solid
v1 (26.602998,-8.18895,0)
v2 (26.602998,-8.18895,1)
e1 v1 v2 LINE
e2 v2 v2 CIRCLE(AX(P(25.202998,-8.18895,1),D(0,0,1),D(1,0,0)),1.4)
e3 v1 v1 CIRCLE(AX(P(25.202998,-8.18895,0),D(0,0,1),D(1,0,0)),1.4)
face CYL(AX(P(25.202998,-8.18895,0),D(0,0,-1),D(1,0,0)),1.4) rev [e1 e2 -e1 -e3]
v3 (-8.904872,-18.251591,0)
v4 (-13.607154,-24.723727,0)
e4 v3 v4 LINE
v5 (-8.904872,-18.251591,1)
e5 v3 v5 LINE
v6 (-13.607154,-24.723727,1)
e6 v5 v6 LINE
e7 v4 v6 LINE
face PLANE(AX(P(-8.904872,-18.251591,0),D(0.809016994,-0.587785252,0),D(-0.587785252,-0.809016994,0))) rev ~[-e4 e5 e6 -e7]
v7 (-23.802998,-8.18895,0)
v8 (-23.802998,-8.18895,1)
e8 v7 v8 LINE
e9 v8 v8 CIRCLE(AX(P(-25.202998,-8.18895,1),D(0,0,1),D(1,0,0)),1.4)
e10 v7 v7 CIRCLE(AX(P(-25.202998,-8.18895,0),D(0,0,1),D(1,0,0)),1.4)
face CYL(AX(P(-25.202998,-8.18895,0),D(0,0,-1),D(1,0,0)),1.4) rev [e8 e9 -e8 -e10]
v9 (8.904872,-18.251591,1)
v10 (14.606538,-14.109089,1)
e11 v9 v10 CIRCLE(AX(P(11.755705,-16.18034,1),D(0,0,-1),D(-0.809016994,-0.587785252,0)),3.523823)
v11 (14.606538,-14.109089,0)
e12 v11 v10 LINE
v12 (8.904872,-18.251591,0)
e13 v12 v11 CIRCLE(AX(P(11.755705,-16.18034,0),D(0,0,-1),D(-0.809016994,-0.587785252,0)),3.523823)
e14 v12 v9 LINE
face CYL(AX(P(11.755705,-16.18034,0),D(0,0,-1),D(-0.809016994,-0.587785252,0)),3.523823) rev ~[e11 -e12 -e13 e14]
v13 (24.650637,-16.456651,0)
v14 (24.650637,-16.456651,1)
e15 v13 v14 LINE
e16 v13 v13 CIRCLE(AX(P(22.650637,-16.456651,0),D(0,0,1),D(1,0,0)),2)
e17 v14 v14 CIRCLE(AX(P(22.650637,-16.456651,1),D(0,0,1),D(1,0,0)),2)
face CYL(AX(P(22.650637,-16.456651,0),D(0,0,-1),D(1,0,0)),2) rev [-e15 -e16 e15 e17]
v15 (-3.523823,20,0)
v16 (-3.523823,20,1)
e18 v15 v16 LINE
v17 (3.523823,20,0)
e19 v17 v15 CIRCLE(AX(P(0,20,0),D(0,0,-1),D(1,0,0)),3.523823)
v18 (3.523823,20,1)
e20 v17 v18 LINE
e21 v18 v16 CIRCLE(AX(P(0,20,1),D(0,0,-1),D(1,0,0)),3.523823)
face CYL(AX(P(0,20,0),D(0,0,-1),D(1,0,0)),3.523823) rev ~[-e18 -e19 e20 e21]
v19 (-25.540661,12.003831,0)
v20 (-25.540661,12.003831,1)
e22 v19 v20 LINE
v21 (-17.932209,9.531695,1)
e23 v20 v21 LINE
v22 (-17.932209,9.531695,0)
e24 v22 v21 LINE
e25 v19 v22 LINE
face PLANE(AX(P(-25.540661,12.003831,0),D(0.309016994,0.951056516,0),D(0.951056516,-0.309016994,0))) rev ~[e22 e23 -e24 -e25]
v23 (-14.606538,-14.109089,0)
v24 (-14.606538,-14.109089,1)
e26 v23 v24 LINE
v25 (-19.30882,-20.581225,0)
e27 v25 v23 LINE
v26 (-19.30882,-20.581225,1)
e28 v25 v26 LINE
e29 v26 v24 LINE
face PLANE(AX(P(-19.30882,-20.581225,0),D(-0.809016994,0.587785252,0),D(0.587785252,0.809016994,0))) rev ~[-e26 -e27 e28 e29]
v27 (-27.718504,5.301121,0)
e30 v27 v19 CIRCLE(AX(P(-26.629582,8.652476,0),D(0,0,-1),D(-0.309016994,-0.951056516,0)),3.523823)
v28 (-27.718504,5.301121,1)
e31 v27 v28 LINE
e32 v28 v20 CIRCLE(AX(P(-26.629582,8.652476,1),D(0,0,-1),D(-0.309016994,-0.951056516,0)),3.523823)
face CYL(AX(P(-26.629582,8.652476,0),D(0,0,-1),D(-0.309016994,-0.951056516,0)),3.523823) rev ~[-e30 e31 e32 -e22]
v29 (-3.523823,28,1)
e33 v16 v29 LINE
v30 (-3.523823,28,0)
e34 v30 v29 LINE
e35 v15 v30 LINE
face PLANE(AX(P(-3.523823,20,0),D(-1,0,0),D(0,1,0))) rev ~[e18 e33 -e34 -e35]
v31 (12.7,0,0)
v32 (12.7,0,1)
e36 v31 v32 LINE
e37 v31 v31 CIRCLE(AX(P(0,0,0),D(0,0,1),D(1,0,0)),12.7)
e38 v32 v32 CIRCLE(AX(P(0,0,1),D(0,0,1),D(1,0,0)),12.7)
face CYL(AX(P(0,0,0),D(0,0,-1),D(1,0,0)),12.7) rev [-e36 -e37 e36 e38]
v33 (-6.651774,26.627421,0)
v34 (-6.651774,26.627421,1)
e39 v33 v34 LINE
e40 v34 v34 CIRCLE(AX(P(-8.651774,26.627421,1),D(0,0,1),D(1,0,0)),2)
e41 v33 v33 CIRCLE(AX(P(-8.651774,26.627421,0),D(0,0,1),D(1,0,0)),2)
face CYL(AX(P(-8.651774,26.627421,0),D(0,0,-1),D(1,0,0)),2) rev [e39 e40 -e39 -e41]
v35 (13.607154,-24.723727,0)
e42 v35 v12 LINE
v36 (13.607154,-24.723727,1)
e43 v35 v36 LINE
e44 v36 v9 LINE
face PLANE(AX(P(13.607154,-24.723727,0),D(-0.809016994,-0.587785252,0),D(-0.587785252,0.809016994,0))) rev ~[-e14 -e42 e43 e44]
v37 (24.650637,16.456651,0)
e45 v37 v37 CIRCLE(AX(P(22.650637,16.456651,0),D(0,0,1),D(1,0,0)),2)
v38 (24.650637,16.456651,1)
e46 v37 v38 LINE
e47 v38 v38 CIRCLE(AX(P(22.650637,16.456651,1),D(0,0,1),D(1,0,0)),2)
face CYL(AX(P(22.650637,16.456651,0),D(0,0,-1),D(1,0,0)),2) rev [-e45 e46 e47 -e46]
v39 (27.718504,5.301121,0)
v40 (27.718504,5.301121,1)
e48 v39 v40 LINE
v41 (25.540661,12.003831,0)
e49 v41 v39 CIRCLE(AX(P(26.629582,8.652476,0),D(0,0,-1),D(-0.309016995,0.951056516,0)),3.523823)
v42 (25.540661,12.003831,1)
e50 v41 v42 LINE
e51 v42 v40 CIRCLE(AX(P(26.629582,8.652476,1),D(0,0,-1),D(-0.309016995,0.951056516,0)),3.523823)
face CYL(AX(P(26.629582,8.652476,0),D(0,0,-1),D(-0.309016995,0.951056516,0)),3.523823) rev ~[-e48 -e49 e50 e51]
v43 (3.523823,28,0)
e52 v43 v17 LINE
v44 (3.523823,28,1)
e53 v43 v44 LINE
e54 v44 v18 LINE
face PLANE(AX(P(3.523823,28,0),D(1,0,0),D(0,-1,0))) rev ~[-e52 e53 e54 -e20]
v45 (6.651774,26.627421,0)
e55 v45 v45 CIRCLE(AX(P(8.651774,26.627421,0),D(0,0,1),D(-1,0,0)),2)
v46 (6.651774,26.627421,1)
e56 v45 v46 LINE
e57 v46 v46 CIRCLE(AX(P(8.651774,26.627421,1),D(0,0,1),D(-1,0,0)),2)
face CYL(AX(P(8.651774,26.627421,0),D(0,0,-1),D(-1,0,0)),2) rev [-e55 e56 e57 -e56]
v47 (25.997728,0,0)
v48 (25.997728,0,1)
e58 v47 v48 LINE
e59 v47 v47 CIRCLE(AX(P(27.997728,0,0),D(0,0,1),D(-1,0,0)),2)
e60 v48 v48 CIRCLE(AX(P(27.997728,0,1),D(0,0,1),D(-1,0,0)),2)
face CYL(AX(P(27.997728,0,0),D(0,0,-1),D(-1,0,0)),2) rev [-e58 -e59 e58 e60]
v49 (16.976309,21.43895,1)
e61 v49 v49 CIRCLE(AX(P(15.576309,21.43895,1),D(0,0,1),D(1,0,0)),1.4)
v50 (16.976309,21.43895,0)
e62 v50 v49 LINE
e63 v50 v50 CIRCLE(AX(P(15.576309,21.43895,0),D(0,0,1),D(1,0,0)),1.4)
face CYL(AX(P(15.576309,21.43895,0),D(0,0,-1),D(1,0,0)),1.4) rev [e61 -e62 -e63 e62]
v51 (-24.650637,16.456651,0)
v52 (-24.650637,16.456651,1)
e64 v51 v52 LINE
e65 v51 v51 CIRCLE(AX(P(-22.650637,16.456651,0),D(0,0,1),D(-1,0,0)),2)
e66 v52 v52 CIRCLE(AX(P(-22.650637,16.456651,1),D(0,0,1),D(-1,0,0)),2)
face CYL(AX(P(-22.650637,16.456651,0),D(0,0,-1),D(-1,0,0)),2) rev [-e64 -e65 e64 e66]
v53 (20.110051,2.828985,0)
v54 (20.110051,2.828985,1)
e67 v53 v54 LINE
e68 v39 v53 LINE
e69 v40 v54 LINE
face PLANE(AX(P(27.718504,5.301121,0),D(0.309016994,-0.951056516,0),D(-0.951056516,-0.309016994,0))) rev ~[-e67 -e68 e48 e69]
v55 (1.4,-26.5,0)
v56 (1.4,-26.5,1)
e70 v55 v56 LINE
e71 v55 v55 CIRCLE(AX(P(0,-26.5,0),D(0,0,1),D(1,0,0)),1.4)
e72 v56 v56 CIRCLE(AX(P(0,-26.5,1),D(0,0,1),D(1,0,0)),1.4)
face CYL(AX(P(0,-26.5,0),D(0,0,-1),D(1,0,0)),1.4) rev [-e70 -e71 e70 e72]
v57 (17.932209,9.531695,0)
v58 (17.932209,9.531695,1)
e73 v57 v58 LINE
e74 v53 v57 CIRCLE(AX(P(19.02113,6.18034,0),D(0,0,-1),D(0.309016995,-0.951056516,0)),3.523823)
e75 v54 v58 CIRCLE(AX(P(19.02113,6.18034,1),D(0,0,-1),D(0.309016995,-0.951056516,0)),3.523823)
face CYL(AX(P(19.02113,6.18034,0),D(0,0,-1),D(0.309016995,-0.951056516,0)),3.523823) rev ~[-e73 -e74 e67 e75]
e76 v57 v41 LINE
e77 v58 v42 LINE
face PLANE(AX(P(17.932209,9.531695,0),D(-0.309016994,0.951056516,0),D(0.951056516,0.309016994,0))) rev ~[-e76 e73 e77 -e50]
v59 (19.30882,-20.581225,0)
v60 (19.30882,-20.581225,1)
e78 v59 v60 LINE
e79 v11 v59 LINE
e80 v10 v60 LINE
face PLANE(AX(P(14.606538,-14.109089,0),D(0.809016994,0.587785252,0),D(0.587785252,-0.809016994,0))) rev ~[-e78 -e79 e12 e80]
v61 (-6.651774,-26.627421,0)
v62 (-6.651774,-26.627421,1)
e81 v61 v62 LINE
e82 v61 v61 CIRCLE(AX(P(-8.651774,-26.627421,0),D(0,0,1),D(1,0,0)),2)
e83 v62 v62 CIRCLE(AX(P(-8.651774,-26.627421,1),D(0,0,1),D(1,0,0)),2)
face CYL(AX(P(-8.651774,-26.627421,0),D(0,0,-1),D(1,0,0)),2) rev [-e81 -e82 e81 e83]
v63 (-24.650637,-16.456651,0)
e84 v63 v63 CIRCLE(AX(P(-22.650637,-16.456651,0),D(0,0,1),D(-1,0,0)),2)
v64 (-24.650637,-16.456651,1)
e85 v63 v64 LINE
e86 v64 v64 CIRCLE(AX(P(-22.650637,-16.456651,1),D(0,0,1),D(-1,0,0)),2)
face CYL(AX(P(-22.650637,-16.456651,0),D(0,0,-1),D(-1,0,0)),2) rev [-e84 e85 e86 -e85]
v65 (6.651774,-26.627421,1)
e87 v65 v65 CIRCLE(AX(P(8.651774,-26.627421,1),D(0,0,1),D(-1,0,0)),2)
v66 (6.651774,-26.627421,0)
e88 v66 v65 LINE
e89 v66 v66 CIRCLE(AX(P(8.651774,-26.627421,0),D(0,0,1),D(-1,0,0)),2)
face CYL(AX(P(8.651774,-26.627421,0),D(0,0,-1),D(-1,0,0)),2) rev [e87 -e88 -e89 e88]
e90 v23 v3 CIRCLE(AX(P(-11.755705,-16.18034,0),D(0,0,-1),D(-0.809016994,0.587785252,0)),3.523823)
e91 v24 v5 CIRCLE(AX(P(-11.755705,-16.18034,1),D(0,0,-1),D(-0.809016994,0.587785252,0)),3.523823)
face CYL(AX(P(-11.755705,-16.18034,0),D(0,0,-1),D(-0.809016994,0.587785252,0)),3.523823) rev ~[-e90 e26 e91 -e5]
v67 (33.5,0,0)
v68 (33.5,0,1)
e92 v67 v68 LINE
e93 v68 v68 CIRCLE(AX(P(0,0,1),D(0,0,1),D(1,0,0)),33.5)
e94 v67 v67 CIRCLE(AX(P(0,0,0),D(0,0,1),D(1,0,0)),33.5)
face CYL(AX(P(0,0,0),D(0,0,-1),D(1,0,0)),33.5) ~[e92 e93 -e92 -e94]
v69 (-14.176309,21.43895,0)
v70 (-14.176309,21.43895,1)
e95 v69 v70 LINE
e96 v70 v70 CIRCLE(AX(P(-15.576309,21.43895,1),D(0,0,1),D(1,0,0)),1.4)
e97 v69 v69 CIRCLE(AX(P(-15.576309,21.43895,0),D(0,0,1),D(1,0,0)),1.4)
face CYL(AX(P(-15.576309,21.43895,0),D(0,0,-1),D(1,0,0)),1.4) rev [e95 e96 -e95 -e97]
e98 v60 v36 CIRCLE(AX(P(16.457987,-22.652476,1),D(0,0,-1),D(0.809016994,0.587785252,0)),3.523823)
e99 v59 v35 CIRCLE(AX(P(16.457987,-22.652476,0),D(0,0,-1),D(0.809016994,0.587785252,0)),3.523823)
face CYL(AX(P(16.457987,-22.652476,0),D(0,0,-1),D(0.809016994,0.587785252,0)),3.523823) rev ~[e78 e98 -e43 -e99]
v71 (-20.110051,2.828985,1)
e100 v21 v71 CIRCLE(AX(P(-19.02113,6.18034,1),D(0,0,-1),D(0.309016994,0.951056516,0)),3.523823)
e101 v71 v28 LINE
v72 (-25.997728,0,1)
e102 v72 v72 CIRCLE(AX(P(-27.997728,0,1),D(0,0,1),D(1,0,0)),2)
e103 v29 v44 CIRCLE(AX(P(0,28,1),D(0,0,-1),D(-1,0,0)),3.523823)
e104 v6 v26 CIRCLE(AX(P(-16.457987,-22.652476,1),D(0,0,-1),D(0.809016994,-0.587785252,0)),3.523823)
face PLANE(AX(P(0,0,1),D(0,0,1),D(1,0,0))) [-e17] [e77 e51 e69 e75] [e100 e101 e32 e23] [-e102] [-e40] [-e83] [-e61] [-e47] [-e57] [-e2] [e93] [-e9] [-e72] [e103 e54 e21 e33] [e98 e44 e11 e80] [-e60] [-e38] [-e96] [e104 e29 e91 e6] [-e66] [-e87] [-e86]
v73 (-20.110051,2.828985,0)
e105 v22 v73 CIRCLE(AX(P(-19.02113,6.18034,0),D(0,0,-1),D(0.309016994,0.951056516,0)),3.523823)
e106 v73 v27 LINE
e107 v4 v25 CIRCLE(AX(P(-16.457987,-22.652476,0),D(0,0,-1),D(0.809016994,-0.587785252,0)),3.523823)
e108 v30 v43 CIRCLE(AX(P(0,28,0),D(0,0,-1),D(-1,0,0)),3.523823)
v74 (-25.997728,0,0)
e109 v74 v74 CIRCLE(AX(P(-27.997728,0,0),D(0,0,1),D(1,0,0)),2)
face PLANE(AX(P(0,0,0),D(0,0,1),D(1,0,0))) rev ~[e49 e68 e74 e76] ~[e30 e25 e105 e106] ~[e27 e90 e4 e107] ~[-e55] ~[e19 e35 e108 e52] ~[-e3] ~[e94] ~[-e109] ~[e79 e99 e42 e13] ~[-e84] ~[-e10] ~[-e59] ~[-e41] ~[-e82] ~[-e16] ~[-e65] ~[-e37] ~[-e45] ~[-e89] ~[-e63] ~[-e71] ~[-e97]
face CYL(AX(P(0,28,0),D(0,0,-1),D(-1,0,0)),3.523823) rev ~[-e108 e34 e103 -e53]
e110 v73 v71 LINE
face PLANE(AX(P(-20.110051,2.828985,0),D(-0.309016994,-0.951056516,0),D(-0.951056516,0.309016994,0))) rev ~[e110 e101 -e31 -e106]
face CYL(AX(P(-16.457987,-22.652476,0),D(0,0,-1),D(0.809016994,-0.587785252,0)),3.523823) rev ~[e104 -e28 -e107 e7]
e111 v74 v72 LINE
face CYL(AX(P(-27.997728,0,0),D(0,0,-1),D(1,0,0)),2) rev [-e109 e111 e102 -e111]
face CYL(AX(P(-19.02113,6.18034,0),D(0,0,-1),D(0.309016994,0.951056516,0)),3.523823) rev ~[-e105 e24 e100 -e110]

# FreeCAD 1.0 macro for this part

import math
import FreeCAD as App
import Part
import Sketcher
Q = App.Units.Quantity

doc = App.newDocument("Part")
body = doc.addObject("PartDesign::Body", "Body")

# Sketch on XY plane
sketch1 = doc.addObject("Sketcher::SketchObject", "Sketch")
body.addObject(sketch1)
sketch1.AttachmentSupport = (doc.XY_Plane, [""])
sketch1.MapMode = "FlatFace"
sketch1.addGeometry([
    Part.Circle(App.Vector(0, 0, 0), App.Vector(0, 0, 1), 33.5),  # 0
    Part.Circle(App.Vector(-22.7, -16.5, 0), App.Vector(0, 0, 1), 2),  # 1
    Part.Circle(App.Vector(-8.7, -26.6, 0), App.Vector(0, 0, 1), 2),  # 2
    Part.ArcOfCircle(Part.Circle(App.Vector(-16.5, -22.7, 0), App.Vector(0, 0, 1), 3.5), math.radians(144), math.radians(324)),  # 3
    Part.LineSegment(App.Vector(-19.3, -20.6, 0), App.Vector(-14.6, -14.1, 0)),  # 4
    Part.ArcOfCircle(Part.Circle(App.Vector(-11.8, -16.2, 0), App.Vector(0, 0, 1), 3.5), math.radians(-36), math.radians(144)),  # 5
    Part.LineSegment(App.Vector(-8.9, -18.3, 0), App.Vector(-13.6, -24.7, 0)),  # 6
    Part.Circle(App.Vector(-25.2, -8.2, 0), App.Vector(0, 0, 1), 1.4),  # 7
    Part.Circle(App.Vector(-28, 0, 0), App.Vector(0, 0, 1), 2),  # 8
    Part.Circle(App.Vector(0, 0, 0), App.Vector(0, 0, 1), 12.7),  # 9
    Part.Circle(App.Vector(0, -26.5, 0), App.Vector(0, 0, 1), 1.4),  # 10
    Part.Circle(App.Vector(8.7, -26.6, 0), App.Vector(0, 0, 1), 2),  # 11
    Part.ArcOfCircle(Part.Circle(App.Vector(16.5, -22.7, 0), App.Vector(0, 0, 1), 3.5), math.radians(-144), math.radians(36)),  # 12
    Part.LineSegment(App.Vector(13.6, -24.7, 0), App.Vector(8.9, -18.3, 0)),  # 13
    Part.ArcOfCircle(Part.Circle(App.Vector(11.8, -16.2, 0), App.Vector(0, 0, 1), 3.5), math.radians(36), math.radians(216)),  # 14
    Part.LineSegment(App.Vector(14.6, -14.1, 0), App.Vector(19.3, -20.6, 0)),  # 15
    Part.Circle(App.Vector(22.7, -16.5, 0), App.Vector(0, 0, 1), 2),  # 16
    Part.Circle(App.Vector(25.2, -8.2, 0), App.Vector(0, 0, 1), 1.4),  # 17
    Part.Circle(App.Vector(28, 0, 0), App.Vector(0, 0, 1), 2),  # 18
    Part.ArcOfCircle(Part.Circle(App.Vector(-26.6, 8.7, 0), App.Vector(0, 0, 1), 3.5), math.radians(72), math.radians(252)),  # 19
    Part.LineSegment(App.Vector(-25.5, 12, 0), App.Vector(-17.9, 9.5, 0)),  # 20
    Part.ArcOfCircle(Part.Circle(App.Vector(-19, 6.2, 0), App.Vector(0, 0, 1), 3.5), math.radians(-108), math.radians(72)),  # 21
    Part.LineSegment(App.Vector(-20.1, 2.8, 0), App.Vector(-27.7, 5.3, 0)),  # 22
    Part.Circle(App.Vector(-22.7, 16.5, 0), App.Vector(0, 0, 1), 2),  # 23
    Part.Circle(App.Vector(-15.6, 21.4, 0), App.Vector(0, 0, 1), 1.4),  # 24
    Part.ArcOfCircle(Part.Circle(App.Vector(0, 28, 0), App.Vector(0, 0, 1), 3.5), math.radians(0), math.radians(180)),  # 25
    Part.LineSegment(App.Vector(3.5, 28, 0), App.Vector(3.5, 20, 0)),  # 26
    Part.ArcOfCircle(Part.Circle(App.Vector(0, 20, 0), App.Vector(0, 0, 1), 3.5), math.radians(180), math.radians(360)),  # 27
    Part.LineSegment(App.Vector(-3.5, 20, 0), App.Vector(-3.5, 28, 0)),  # 28
    Part.Circle(App.Vector(-8.7, 26.6, 0), App.Vector(0, 0, 1), 2),  # 29
    Part.ArcOfCircle(Part.Circle(App.Vector(26.6, 8.7, 0), App.Vector(0, 0, 1), 3.5), math.radians(-72), math.radians(108)),  # 30
    Part.LineSegment(App.Vector(27.7, 5.3, 0), App.Vector(20.1, 2.8, 0)),  # 31
    Part.ArcOfCircle(Part.Circle(App.Vector(19, 6.2, 0), App.Vector(0, 0, 1), 3.5), math.radians(108), math.radians(288)),  # 32
    Part.LineSegment(App.Vector(17.9, 9.5, 0), App.Vector(25.5, 12, 0)),  # 33
    Part.Circle(App.Vector(22.7, 16.5, 0), App.Vector(0, 0, 1), 2),  # 34
    Part.Circle(App.Vector(8.7, 26.6, 0), App.Vector(0, 0, 1), 2),  # 35
    Part.Circle(App.Vector(15.6, 21.4, 0), App.Vector(0, 0, 1), 1.4),  # 36
], False)
sketch1.addConstraint([
    Sketcher.Constraint("Tangent", 3, 1, 4, 1),
    Sketcher.Constraint("Tangent", 4, 2, 5, 2),
    Sketcher.Constraint("Tangent", 5, 1, 6, 1),
    Sketcher.Constraint("Tangent", 6, 2, 3, 2),
    Sketcher.Constraint("Tangent", 12, 1, 13, 1),
    Sketcher.Constraint("Tangent", 13, 2, 14, 2),
    Sketcher.Constraint("Tangent", 14, 1, 15, 1),
    Sketcher.Constraint("Tangent", 15, 2, 12, 2),
    Sketcher.Constraint("Tangent", 19, 1, 20, 1),
    Sketcher.Constraint("Tangent", 20, 2, 21, 2),
    Sketcher.Constraint("Tangent", 21, 1, 22, 1),
    Sketcher.Constraint("Tangent", 22, 2, 19, 2),
    Sketcher.Constraint("Tangent", 25, 1, 26, 1),
    Sketcher.Constraint("Tangent", 26, 2, 27, 2),
    Sketcher.Constraint("Tangent", 27, 1, 28, 1),
    Sketcher.Constraint("Tangent", 28, 2, 25, 2),
    Sketcher.Constraint("Tangent", 30, 1, 31, 1),
    Sketcher.Constraint("Tangent", 31, 2, 32, 2),
    Sketcher.Constraint("Tangent", 32, 1, 33, 1),
    Sketcher.Constraint("Tangent", 33, 2, 30, 2),
    Sketcher.Constraint("Vertical", 26),
    Sketcher.Constraint("Vertical", 28),
    Sketcher.Constraint("Coincident", 0, 3, -1, 1),
    Sketcher.Constraint("Coincident", 9, 3, -1, 1),
    Sketcher.Constraint("Equal", 1, 2),
    Sketcher.Constraint("Equal", 3, 5),
    Sketcher.Constraint("Equal", 2, 8),
    Sketcher.Constraint("Equal", 7, 10),
    Sketcher.Constraint("Equal", 8, 11),
    Sketcher.Constraint("Equal", 5, 12),
    Sketcher.Constraint("Equal", 12, 14),
    Sketcher.Constraint("Equal", 11, 16),
    Sketcher.Constraint("Equal", 10, 17),
    Sketcher.Constraint("Equal", 16, 18),
    Sketcher.Constraint("Equal", 14, 19),
    Sketcher.Constraint("Equal", 19, 21),
    Sketcher.Constraint("Equal", 18, 23),
    Sketcher.Constraint("Equal", 17, 24),
    Sketcher.Constraint("Equal", 21, 25),
    Sketcher.Constraint("Equal", 23, 29),
    Sketcher.Constraint("Equal", 27, 30),
    Sketcher.Constraint("Equal", 30, 32),
    Sketcher.Constraint("Equal", 29, 34),
    Sketcher.Constraint("Equal", 34, 35),
    Sketcher.Constraint("Equal", 24, 36),
    Sketcher.Constraint("Symmetric", 8, 3, 18, 3, -1, 1),
    Sketcher.Constraint("Symmetric", 16, 3, 23, 3, -1, 1),
    Sketcher.Constraint("Symmetric", 11, 3, 29, 3, -1, 1),
    Sketcher.Constraint("Symmetric", 1, 3, 34, 3, -1, 1),
    Sketcher.Constraint("Symmetric", 2, 3, 35, 3, -1, 1),
    Sketcher.Constraint("Symmetric", 2, 3, 11, 3, -2),
    Sketcher.Constraint("Symmetric", 3, 3, 12, 3, -2),
    Sketcher.Constraint("Symmetric", 5, 3, 14, 3, -2),
    Sketcher.Constraint("Symmetric", 1, 3, 16, 3, -2),
    Sketcher.Constraint("Symmetric", 7, 3, 17, 3, -2),
    Sketcher.Constraint("Symmetric", 19, 3, 30, 3, -2),
    Sketcher.Constraint("Symmetric", 21, 3, 32, 3, -2),
    Sketcher.Constraint("Symmetric", 24, 3, 36, 3, -2),
    Sketcher.Constraint("PointOnObject", 8, 3, -1),
    Sketcher.Constraint("PointOnObject", 10, 3, -2),
    Sketcher.Constraint("PointOnObject", 25, 3, -2),
    Sketcher.Constraint("Equal", 15, 20),
    Sketcher.Constraint("Diameter", 0, Q("67 mm")),
    Sketcher.Constraint("Diameter", 1, Q("4 mm")),
    Sketcher.Constraint("Diameter", 7, Q("2.8 mm")),
    Sketcher.Constraint("Diameter", 9, Q("25.4 mm")),
    Sketcher.Constraint("DistanceY", 26, 2, 26, 1, Q("8 mm")),
    Sketcher.Constraint("Angle", 4, Q("54 deg")),
    Sketcher.Constraint("Angle", 20, Q("-18 deg")),
    Sketcher.Constraint("Distance", 4, Q("8 mm")),
    Sketcher.Constraint("DistanceY", -1, 1, 25, 3, Q("28 mm")),
    Sketcher.Constraint("DistanceY", 10, 3, -1, 1, Q("26.5 mm")),
    Sketcher.Constraint("Radius", 3, Q("3.523823 mm")),
    Sketcher.Constraint("DistanceY", 1, 3, 7, 3, Q("8.267701 mm")),
    Sketcher.Constraint("DistanceY", 7, 3, 23, 3, Q("24.645602 mm")),
    Sketcher.Constraint("DistanceY", 23, 3, 24, 3, Q("4.982299 mm")),
    Sketcher.Constraint("DistanceX", 1, 3, 4, 2, Q("8.0441 mm")),
    Sketcher.Constraint("DistanceX", 5, 1, 2, 3, Q("0.253099 mm")),
    Sketcher.Constraint("DistanceX", 20, 2, 24, 3, Q("2.3559 mm")),
    Sketcher.Constraint("DistanceY", 2, 3, -1, 1, Q("26.627421 mm")),
    Sketcher.Constraint("DistanceY", 5, 3, -1, 1, Q("16.18034 mm")),
    Sketcher.Constraint("DistanceX", 21, 3, -1, 1, Q("19.02113 mm")),
    Sketcher.Constraint("DistanceY", -1, 1, 21, 3, Q("6.18034 mm")),
    Sketcher.Constraint("DistanceX", 3, 1, -1, 1, Q("19.30882 mm")),
    Sketcher.Constraint("DistanceX", 7, 3, 1, 3, Q("2.55236 mm")),
    Sketcher.Constraint("DistanceX", 8, 3, 7, 3, Q("2.79473 mm")),
])
pad1 = doc.addObject("PartDesign::Pad", "Pad")
body.addObject(pad1)
pad1.Profile = sketch1
pad1.Length = 1

doc.recompute()
